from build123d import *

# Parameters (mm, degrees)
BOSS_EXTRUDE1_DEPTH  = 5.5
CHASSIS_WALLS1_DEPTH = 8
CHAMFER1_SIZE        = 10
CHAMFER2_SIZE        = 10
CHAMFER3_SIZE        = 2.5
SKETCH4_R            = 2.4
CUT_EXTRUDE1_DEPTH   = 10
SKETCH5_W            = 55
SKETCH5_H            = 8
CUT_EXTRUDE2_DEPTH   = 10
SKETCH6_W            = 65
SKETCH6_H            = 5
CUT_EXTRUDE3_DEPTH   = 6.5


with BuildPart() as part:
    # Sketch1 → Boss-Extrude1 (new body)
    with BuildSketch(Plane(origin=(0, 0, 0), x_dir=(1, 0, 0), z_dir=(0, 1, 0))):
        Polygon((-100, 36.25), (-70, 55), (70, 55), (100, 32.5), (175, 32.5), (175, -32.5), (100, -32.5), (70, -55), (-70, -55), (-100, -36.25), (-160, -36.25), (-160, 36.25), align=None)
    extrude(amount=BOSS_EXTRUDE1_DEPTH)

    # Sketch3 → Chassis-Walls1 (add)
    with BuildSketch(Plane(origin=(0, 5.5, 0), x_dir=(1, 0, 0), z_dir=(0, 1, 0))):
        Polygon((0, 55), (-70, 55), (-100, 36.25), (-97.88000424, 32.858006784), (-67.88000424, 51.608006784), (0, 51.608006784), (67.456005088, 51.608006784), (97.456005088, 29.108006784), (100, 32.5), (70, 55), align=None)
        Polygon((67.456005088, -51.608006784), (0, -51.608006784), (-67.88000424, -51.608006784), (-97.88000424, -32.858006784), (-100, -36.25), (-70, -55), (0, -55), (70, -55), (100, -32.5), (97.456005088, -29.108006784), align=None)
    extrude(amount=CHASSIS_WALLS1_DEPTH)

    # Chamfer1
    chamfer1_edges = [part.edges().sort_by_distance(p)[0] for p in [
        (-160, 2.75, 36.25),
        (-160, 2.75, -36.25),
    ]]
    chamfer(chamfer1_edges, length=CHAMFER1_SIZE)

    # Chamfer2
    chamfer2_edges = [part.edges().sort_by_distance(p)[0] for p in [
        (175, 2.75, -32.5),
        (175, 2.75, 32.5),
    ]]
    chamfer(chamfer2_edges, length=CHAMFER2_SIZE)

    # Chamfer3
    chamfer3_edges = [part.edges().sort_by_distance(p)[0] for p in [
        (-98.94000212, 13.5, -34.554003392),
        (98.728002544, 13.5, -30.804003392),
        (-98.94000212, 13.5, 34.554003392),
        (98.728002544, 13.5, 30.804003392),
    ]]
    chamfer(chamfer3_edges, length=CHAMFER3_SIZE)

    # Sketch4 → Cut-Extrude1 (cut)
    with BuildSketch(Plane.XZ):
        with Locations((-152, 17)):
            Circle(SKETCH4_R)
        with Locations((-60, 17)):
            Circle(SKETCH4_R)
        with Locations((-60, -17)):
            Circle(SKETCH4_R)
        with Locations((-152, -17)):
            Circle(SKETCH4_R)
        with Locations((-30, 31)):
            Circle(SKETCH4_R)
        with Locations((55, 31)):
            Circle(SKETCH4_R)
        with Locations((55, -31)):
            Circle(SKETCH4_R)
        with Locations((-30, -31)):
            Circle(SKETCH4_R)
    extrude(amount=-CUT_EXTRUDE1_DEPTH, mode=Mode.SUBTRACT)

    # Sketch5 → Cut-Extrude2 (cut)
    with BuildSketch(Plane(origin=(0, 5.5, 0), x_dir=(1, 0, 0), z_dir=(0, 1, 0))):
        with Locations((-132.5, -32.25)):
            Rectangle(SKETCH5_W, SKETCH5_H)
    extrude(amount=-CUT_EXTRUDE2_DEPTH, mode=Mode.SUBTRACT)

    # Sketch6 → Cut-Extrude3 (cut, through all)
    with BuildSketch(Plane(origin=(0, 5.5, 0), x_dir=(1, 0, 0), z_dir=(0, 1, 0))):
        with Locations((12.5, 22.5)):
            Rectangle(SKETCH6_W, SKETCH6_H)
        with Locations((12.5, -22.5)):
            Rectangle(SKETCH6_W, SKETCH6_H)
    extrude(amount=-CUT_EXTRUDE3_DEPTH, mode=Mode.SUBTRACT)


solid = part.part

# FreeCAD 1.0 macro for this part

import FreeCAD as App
import Part
import Sketcher

V = App.Vector
Q = App.Units.Quantity


def edges_at(feature, points):
    """Names of the edges that pass closest to the given points."""
    edges = feature.Shape.Edges
    near = lambda p: min(range(len(edges)), key=lambda i: edges[i].distToShape(Part.Vertex(*p))[0])
    return sorted({f"Edge{near(p) + 1}" for p in points})


def add_polygon(sketch, points):
    """Adds a closed chain of lines whose ends are joined by coincident constraints."""
    first, n = sketch.GeometryCount, len(points)
    for a, b in zip(points, points[1:] + points[:1]):
        sketch.addGeometry(Part.LineSegment(App.Vector(*a, 0), App.Vector(*b, 0)), False)
    for i in range(n):
        sketch.addConstraint(Sketcher.Constraint("Coincident", first + i, 2, first + (i + 1) % n, 1))

doc = App.newDocument("Part")
body = doc.addObject("PartDesign::Body", "Body")

# Sketch on XZ plane
sketch1 = doc.addObject("Sketcher::SketchObject", "Sketch")
body.addObject(sketch1)
sketch1.AttachmentSupport = (doc.XZ_Plane, [""])
sketch1.MapMode = "FlatFace"
add_polygon(sketch1, [(-70, -55), (-100, -36), (-160, -36), (-160, 36), (-100, 36), (-70, 55), (70, 55), (100, 32), (175, 32), (175, -32), (100, -32), (70, -55)])  # lines 0-11
sketch1.addConstraint([
    Sketcher.Constraint("Horizontal", 1),
    Sketcher.Constraint("Vertical", 2),
    Sketcher.Constraint("Horizontal", 3),
    Sketcher.Constraint("Horizontal", 5),
    Sketcher.Constraint("Horizontal", 7),
    Sketcher.Constraint("Vertical", 8),
    Sketcher.Constraint("Horizontal", 9),
    Sketcher.Constraint("Horizontal", 11),
    Sketcher.Constraint("Symmetric", 4, 2, 10, 2, -1, 1),
    Sketcher.Constraint("Symmetric", 0, 2, 3, 2, -1),
    Sketcher.Constraint("Symmetric", 6, 2, 9, 2, -1),
    Sketcher.Constraint("Vertical", 5, 2, 10, 2),
    Sketcher.Constraint("Vertical", 4, 2, 11, 2),
    Sketcher.Constraint("DistanceX", 1, 2, 1, 1, Q("60 mm")),
    Sketcher.Constraint("DistanceX", 5, 1, 5, 2, Q("140 mm")),
    Sketcher.Constraint("DistanceX", 7, 1, 7, 2, Q("75 mm")),
    Sketcher.Constraint("DistanceY", 8, 2, 8, 1, Q("65 mm")),
    Sketcher.Constraint("DistanceY", 2, 1, 2, 2, Q("72.5 mm")),
    Sketcher.Constraint("DistanceX", 0, 2, -1, 1, Q("100 mm")),
    Sketcher.Constraint("DistanceY", -1, 1, 4, 2, Q("55 mm")),
    Sketcher.Constraint("DistanceX", -1, 1, 6, 2, Q("100 mm")),
])
pad1 = doc.addObject("PartDesign::Pad", "Pad")
body.addObject(pad1)
pad1.Profile = sketch1
pad1.Length = 5.5
pad1.Reversed = True

# Sketch on XZ plane
sketch2 = doc.addObject("Sketcher::SketchObject", "Sketch001")
body.addObject(sketch2)
sketch2.AttachmentSupport = (doc.XZ_Plane, [""])
sketch2.MapMode = "FlatFace"
sketch2.AttachmentOffset = App.Placement(V(0, 0, -5.5), App.Rotation())
add_polygon(sketch2, [(-70, -55), (-100, -36.2), (-97.9, -32.9), (-67.9, -51.6), (67.5, -51.6), (97.5, -29.1), (100, -32.5), (70, -55)])  # lines 0-7
add_polygon(sketch2, [(67.5, 51.6), (-67.9, 51.6), (-97.9, 32.9), (-100, 36.2), (-70, 55), (70, 55), (100, 32.5), (97.5, 29.1)])  # lines 8-15
sketch2.addConstraint([
    Sketcher.Constraint("Horizontal", 3),
    Sketcher.Constraint("Horizontal", 7),
    Sketcher.Constraint("Horizontal", 8),
    Sketcher.Constraint("Horizontal", 12),
    Sketcher.Constraint("Symmetric", 6, 2, 11, 2, -1, 1),
    Sketcher.Constraint("Symmetric", 2, 2, 8, 2, -1),
    Sketcher.Constraint("Symmetric", 1, 2, 9, 2, -1),
    Sketcher.Constraint("Symmetric", 0, 2, 10, 2, -1),
    Sketcher.Constraint("Symmetric", 5, 2, 13, 2, -1),
    Sketcher.Constraint("Symmetric", 4, 2, 14, 2, -1),
    Sketcher.Constraint("Perpendicular", 0, 1),
    Sketcher.Constraint("Perpendicular", 1, 2),
    Sketcher.Constraint("Perpendicular", 4, 5),
    Sketcher.Constraint("Perpendicular", 5, 6),
    Sketcher.Constraint("Perpendicular", 10, 11),
    Sketcher.Constraint("Perpendicular", 13, 14),
    Sketcher.Constraint("Perpendicular", 14, 15),
    Sketcher.Constraint("Equal", 0, 2),
    Sketcher.Constraint("Equal", 4, 6),
    Sketcher.Constraint("DistanceX", 7, 2, 7, 1, Q("140 mm")),
    Sketcher.Constraint("Distance", 1, Q("4 mm")),
    Sketcher.Constraint("DistanceX", 0, 2, -1, 1, Q("100 mm")),
    Sketcher.Constraint("DistanceX", -1, 1, 5, 2, Q("100 mm")),
    Sketcher.Constraint("DistanceY", 6, 2, -1, 1, Q("55 mm")),
    Sketcher.Constraint("DistanceY", 5, 2, 13, 2, Q("65 mm")),
    Sketcher.Constraint("DistanceY", 0, 2, 10, 2, Q("72.5 mm")),
])
pad2 = doc.addObject("PartDesign::Pad", "Pad001")
body.addObject(pad2)
pad2.Profile = sketch2
pad2.Length = 8
pad2.Reversed = True
doc.recompute()

chamfer = doc.addObject("PartDesign::Chamfer", "Chamfer")
body.addObject(chamfer)
chamfer.Base = (pad2, edges_at(pad2, [(-160, 2.75, 36.25), (-160, 2.75, -36.25)]))
chamfer.Size = 10
doc.recompute()

chamfer2 = doc.addObject("PartDesign::Chamfer", "Chamfer001")
body.addObject(chamfer2)
chamfer2.Base = (chamfer, edges_at(chamfer, [(175, 2.75, -32.5), (175, 2.75, 32.5)]))
chamfer2.Size = 10
doc.recompute()

chamfer3 = doc.addObject("PartDesign::Chamfer", "Chamfer002")
body.addObject(chamfer3)
chamfer3.Base = (chamfer2, edges_at(chamfer2, [
    (-98.94, 13.5, -34.554),
    (98.728, 13.5, -30.804),
    (-98.94, 13.5, 34.554),
    (98.728, 13.5, 30.804),
]))
chamfer3.Size = 2.5

# Sketch on XZ plane
sketch3 = doc.addObject("Sketcher::SketchObject", "Sketch002")
body.addObject(sketch3)
sketch3.AttachmentSupport = (doc.XZ_Plane, [""])
sketch3.MapMode = "FlatFace"
sketch3.addGeometry([
    Part.Circle(V(-152, 17, 0), V(0, 0, 1), 2.4),  # 0
    Part.Circle(V(-60, 17, 0), V(0, 0, 1), 2.4),  # 1
    Part.Circle(V(-60, -17, 0), V(0, 0, 1), 2.4),  # 2
    Part.Circle(V(-152, -17, 0), V(0, 0, 1), 2.4),  # 3
    Part.Circle(V(-30, 31, 0), V(0, 0, 1), 2.4),  # 4
    Part.Circle(V(55, 31, 0), V(0, 0, 1), 2.4),  # 5
    Part.Circle(V(55, -31, 0), V(0, 0, 1), 2.4),  # 6
    Part.Circle(V(-30, -31, 0), V(0, 0, 1), 2.4),  # 7
], False)
sketch3.addConstraint([
    Sketcher.Constraint("Equal", 0, 1),
    Sketcher.Constraint("Equal", 1, 2),
    Sketcher.Constraint("Equal", 2, 3),
    Sketcher.Constraint("Equal", 3, 4),
    Sketcher.Constraint("Equal", 4, 5),
    Sketcher.Constraint("Equal", 5, 6),
    Sketcher.Constraint("Equal", 6, 7),
    Sketcher.Constraint("Symmetric", 1, 3, 2, 3, -1),
    Sketcher.Constraint("Symmetric", 0, 3, 3, 3, -1),
    Sketcher.Constraint("Symmetric", 5, 3, 6, 3, -1),
    Sketcher.Constraint("Symmetric", 4, 3, 7, 3, -1),
    Sketcher.Constraint("Horizontal", 0, 3, 1, 3),
    Sketcher.Constraint("Horizontal", 4, 3, 5, 3),
    Sketcher.Constraint("Diameter", 0, Q("4.8 mm")),
    Sketcher.Constraint("DistanceX", 0, 3, -1, 1, Q("152 mm")),
    Sketcher.Constraint("DistanceY", -1, 1, 0, 3, Q("17 mm")),
    Sketcher.Constraint("DistanceX", 1, 3, -1, 1, Q("60 mm")),
    Sketcher.Constraint("DistanceX", 4, 3, -1, 1, Q("30 mm")),
    Sketcher.Constraint("DistanceY", -1, 1, 4, 3, Q("31 mm")),
    Sketcher.Constraint("DistanceX", -1, 1, 5, 3, Q("55 mm")),
])
pocket1 = doc.addObject("PartDesign::Pocket", "Pocket")
body.addObject(pocket1)
pocket1.Profile = sketch3
pocket1.Length = 10

# Sketch on XZ plane
sketch4 = doc.addObject("Sketcher::SketchObject", "Sketch003")
body.addObject(sketch4)
sketch4.AttachmentSupport = (doc.XZ_Plane, [""])
sketch4.MapMode = "FlatFace"
sketch4.AttachmentOffset = App.Placement(V(0, 0, -5.5), App.Rotation())
add_polygon(sketch4, [(-160, 28), (-160, 36), (-105, 36), (-105, 28)])  # lines 0-3
sketch4.addConstraint([
    Sketcher.Constraint("Vertical", 0),
    Sketcher.Constraint("Horizontal", 1),
    Sketcher.Constraint("Vertical", 2),
    Sketcher.Constraint("Horizontal", 3),
    Sketcher.Constraint("DistanceX", 1, 1, 1, 2, Q("55 mm")),
    Sketcher.Constraint("DistanceY", 0, 1, 0, 2, Q("8 mm")),
    Sketcher.Constraint("DistanceX", 0, 2, -1, 1, Q("160 mm")),
    Sketcher.Constraint("DistanceY", -1, 1, 0, 2, Q("36.25 mm")),
])
pocket2 = doc.addObject("PartDesign::Pocket", "Pocket001")
body.addObject(pocket2)
pocket2.Profile = sketch4
pocket2.Length = 10
pocket2.Reversed = True

# Sketch on XZ plane
sketch5 = doc.addObject("Sketcher::SketchObject", "Sketch004")
body.addObject(sketch5)
sketch5.AttachmentSupport = (doc.XZ_Plane, [""])
sketch5.MapMode = "FlatFace"
sketch5.AttachmentOffset = App.Placement(V(0, 0, -5.5), App.Rotation())
add_polygon(sketch5, [(-20, -25), (-20, -20), (45, -20), (45, -25)])  # lines 0-3
add_polygon(sketch5, [(-20, 20), (-20, 25), (45, 25), (45, 20)])  # lines 4-7
sketch5.addConstraint([
    Sketcher.Constraint("Vertical", 0),
    Sketcher.Constraint("Horizontal", 1),
    Sketcher.Constraint("Vertical", 2),
    Sketcher.Constraint("Horizontal", 3),
    Sketcher.Constraint("Vertical", 4),
    Sketcher.Constraint("Horizontal", 5),
    Sketcher.Constraint("Vertical", 6),
    Sketcher.Constraint("Horizontal", 7),
    Sketcher.Constraint("Symmetric", 3, 2, 4, 2, -1),
    Sketcher.Constraint("Symmetric", 1, 2, 6, 2, -1),
    Sketcher.Constraint("DistanceX", 1, 1, 1, 2, Q("65 mm")),
    Sketcher.Constraint("DistanceY", 0, 1, 0, 2, Q("5 mm")),
    Sketcher.Constraint("DistanceX", 0, 2, -1, 1, Q("20 mm")),
    Sketcher.Constraint("DistanceY", 0, 2, -1, 1, Q("20 mm")),
])
pocket3 = doc.addObject("PartDesign::Pocket", "Pocket002")
body.addObject(pocket3)
pocket3.Profile = sketch5
pocket3.Type = "ThroughAll"
pocket3.Reversed = True

doc.recompute()
